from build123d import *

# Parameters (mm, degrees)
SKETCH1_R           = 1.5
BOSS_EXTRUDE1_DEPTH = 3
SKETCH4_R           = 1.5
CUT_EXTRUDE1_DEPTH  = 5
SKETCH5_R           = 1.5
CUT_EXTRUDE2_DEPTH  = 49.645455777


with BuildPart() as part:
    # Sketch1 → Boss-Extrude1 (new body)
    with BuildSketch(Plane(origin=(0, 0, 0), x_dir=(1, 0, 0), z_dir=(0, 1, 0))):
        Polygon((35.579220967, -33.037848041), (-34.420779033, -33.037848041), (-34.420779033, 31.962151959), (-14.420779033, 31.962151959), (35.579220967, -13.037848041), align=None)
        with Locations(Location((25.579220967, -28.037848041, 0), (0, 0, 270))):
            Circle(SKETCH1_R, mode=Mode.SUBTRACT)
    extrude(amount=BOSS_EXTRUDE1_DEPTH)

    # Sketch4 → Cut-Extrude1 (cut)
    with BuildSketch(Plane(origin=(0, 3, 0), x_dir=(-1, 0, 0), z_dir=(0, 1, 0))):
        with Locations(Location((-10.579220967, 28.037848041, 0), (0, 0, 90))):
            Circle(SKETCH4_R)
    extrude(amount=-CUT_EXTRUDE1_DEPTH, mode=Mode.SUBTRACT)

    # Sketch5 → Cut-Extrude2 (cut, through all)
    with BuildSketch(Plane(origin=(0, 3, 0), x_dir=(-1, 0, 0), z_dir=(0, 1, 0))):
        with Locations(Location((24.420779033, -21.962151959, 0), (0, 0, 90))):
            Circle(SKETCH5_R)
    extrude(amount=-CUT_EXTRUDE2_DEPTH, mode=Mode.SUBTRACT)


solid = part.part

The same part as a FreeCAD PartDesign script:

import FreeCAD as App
import Part
import Sketcher
from FreeCAD import Vector

doc = App.newDocument("Part")
body = doc.addObject("PartDesign::Body", "Body")

# Sketch on XZ plane
sketch1 = body.newObject("Sketcher::SketchObject", "Sketch")
sketch1.AttachmentSupport = (doc.getObject("XZ_Plane"), [""])
sketch1.MapMode = "FlatFace"
sketch1.addGeometry(Part.LineSegment(Vector(-34.420779, 33.037848, 0), Vector(35.579221, 33.037848, 0)), False)
sketch1.addGeometry(Part.LineSegment(Vector(35.579221, 33.037848, 0), Vector(35.579221, 13.037848, 0)), False)
sketch1.addGeometry(Part.LineSegment(Vector(35.579221, 13.037848, 0), Vector(-14.420779, -31.962152, 0)), False)
sketch1.addGeometry(Part.LineSegment(Vector(-14.420779, -31.962152, 0), Vector(-34.420779, -31.962152, 0)), False)
sketch1.addGeometry(Part.LineSegment(Vector(-34.420779, -31.962152, 0), Vector(-34.420779, 33.037848, 0)), False)
sketch1.addGeometry(Part.Circle(Vector(25.579221, 28.037848, 0), Vector(0, 0, 1), 1.5), False)
sketch1.addConstraint(Sketcher.Constraint("Coincident", 0, 2, 1, 1))
sketch1.addConstraint(Sketcher.Constraint("Coincident", 1, 2, 2, 1))
sketch1.addConstraint(Sketcher.Constraint("Coincident", 2, 2, 3, 1))
sketch1.addConstraint(Sketcher.Constraint("Coincident", 3, 2, 4, 1))
sketch1.addConstraint(Sketcher.Constraint("Coincident", 4, 2, 0, 1))
sketch1.addConstraint(Sketcher.Constraint("Horizontal", 0))
sketch1.addConstraint(Sketcher.Constraint("Vertical", 1))
sketch1.addConstraint(Sketcher.Constraint("Horizontal", 3))
sketch1.addConstraint(Sketcher.Constraint("Vertical", 4))
sketch1.addConstraint(Sketcher.Constraint("Equal", 3, 1))
sketch1.addConstraint(Sketcher.Constraint("Diameter", 5, 3.0))
sketch1.addConstraint(Sketcher.Constraint("DistanceX", 0, 1, 0, 2, 70.0))
sketch1.addConstraint(Sketcher.Constraint("DistanceX", 3, 2, 3, 1, 20.0))
sketch1.addConstraint(Sketcher.Constraint("DistanceY", 4, 1, 4, 2, 65.0))
sketch1.addConstraint(Sketcher.Constraint("DistanceX", 5, 3, 0, 2, 10.0))
sketch1.addConstraint(Sketcher.Constraint("DistanceY", 5, 3, 0, 2, 5.0))
sketch1.addConstraint(Sketcher.Constraint("DistanceX", -1, 1, 5, 3, 25.579221))
sketch1.addConstraint(Sketcher.Constraint("DistanceY", -1, 1, 5, 3, 28.037848))
pad1 = body.newObject("PartDesign::Pad", "Pad")
pad1.Profile = sketch1
pad1.Length = 3
pad1.Reversed = True

# Sketch on XZ plane
sketch2 = body.newObject("Sketcher::SketchObject", "Sketch001")
sketch2.AttachmentSupport = (doc.getObject("XZ_Plane"), [""])
sketch2.MapMode = "FlatFace"
sketch2.AttachmentOffset = App.Placement(Vector(0, 0, -3), App.Rotation())
sketch2.addGeometry(Part.Circle(Vector(10.579221, 28.037848, 0), Vector(0, 0, 1), 1.5), False)
sketch2.addConstraint(Sketcher.Constraint("Diameter", 0, 3.0))
sketch2.addConstraint(Sketcher.Constraint("DistanceX", -1, 1, 0, 3, 10.579221))
sketch2.addConstraint(Sketcher.Constraint("DistanceY", -1, 1, 0, 3, 28.037848))
pocket1 = body.newObject("PartDesign::Pocket", "Pocket")
pocket1.Profile = sketch2
pocket1.Length = 5
pocket1.Reversed = True

# Sketch on XZ plane
sketch3 = body.newObject("Sketcher::SketchObject", "Sketch002")
sketch3.AttachmentSupport = (doc.getObject("XZ_Plane"), [""])
sketch3.MapMode = "FlatFace"
sketch3.AttachmentOffset = App.Placement(Vector(0, 0, -3), App.Rotation())
sketch3.addGeometry(Part.Circle(Vector(-24.420779, -21.962152, 0), Vector(0, 0, 1), 1.5), False)
sketch3.addConstraint(Sketcher.Constraint("Diameter", 0, 3.0))
sketch3.addConstraint(Sketcher.Constraint("DistanceX", 0, 3, -1, 1, 24.420779))
sketch3.addConstraint(Sketcher.Constraint("DistanceY", 0, 3, -1, 1, 21.962152))
pocket2 = body.newObject("PartDesign::Pocket", "Pocket001")
pocket2.Profile = sketch3
pocket2.Type = "ThroughAll"
pocket2.Reversed = True

doc.recompute()
